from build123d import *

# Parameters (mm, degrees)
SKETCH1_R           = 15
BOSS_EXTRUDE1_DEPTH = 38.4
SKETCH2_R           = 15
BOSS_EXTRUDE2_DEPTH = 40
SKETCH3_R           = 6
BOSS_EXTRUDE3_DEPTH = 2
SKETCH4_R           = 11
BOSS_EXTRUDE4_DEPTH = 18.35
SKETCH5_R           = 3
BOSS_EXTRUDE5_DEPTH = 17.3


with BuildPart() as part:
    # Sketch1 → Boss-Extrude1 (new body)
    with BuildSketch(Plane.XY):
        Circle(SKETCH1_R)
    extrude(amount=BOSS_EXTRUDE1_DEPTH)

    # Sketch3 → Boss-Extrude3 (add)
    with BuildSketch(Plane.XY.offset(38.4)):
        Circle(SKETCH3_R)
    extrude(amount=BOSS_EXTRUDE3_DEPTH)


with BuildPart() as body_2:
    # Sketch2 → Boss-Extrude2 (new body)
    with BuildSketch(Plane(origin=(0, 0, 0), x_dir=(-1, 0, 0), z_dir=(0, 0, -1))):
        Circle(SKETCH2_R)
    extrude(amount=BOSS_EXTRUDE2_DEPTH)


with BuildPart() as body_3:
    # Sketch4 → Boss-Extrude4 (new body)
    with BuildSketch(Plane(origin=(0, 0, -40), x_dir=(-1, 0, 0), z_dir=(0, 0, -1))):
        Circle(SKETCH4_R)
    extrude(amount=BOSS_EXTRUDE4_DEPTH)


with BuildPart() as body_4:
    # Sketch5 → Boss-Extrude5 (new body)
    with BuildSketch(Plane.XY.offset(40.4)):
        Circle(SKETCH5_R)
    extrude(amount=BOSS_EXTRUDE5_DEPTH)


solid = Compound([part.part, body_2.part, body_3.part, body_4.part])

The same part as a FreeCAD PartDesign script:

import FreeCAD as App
import Part
import Sketcher
from FreeCAD import Vector
Q = App.Units.Quantity

doc = App.newDocument("Part")
body = doc.addObject("PartDesign::Body", "Body")

# Sketch on XY plane
sketch1 = body.newObject("Sketcher::SketchObject", "Sketch")
sketch1.AttachmentSupport = (doc.getObject("XY_Plane"), [""])
sketch1.MapMode = "FlatFace"
sketch1.addGeometry(Part.Circle(Vector(0, 0, 0), Vector(0, 0, 1), 15), False)
sketch1.addConstraint([
    Sketcher.Constraint("Coincident", 0, 3, -1, 1),
    Sketcher.Constraint("Diameter", 0, Q("30 mm")),
])
pad1 = body.newObject("PartDesign::Pad", "Pad")
pad1.Profile = sketch1
pad1.Length = 38.4

# Sketch on XY plane
sketch2 = body.newObject("Sketcher::SketchObject", "Sketch001")
sketch2.AttachmentSupport = (doc.getObject("XY_Plane"), [""])
sketch2.MapMode = "FlatFace"
sketch2.AttachmentOffset = App.Placement(Vector(0, 0, 38.4), App.Rotation())
sketch2.addGeometry(Part.Circle(Vector(0, 0, 0), Vector(0, 0, 1), 6), False)
sketch2.addConstraint([
    Sketcher.Constraint("Coincident", 0, 3, -1, 1),
    Sketcher.Constraint("Diameter", 0, Q("12 mm")),
])
pad2 = body.newObject("PartDesign::Pad", "Pad001")
pad2.Profile = sketch2
pad2.Length = 2
body2 = doc.addObject("PartDesign::Body", "Body001")

# Sketch on XY plane
sketch3 = body2.newObject("Sketcher::SketchObject", "Sketch002")
sketch3.AttachmentSupport = (doc.getObject("XY_Plane001"), [""])
sketch3.MapMode = "FlatFace"
sketch3.addGeometry(Part.Circle(Vector(0, 0, 0), Vector(0, 0, 1), 15), False)
sketch3.addConstraint([
    Sketcher.Constraint("Coincident", 0, 3, -1, 1),
    Sketcher.Constraint("Diameter", 0, Q("30 mm")),
])
pad3 = body2.newObject("PartDesign::Pad", "Pad002")
pad3.Profile = sketch3
pad3.Length = 40
pad3.Reversed = True
body3 = doc.addObject("PartDesign::Body", "Body002")

# Sketch on XY plane
sketch4 = body3.newObject("Sketcher::SketchObject", "Sketch003")
sketch4.AttachmentSupport = (doc.getObject("XY_Plane002"), [""])
sketch4.MapMode = "FlatFace"
sketch4.AttachmentOffset = App.Placement(Vector(0, 0, -40), App.Rotation())
sketch4.addGeometry(Part.Circle(Vector(0, 0, 0), Vector(0, 0, 1), 11), False)
sketch4.addConstraint([
    Sketcher.Constraint("Coincident", 0, 3, -1, 1),
    Sketcher.Constraint("Diameter", 0, Q("22 mm")),
])
pad4 = body3.newObject("PartDesign::Pad", "Pad003")
pad4.Profile = sketch4
pad4.Length = 18.35
pad4.Reversed = True
body4 = doc.addObject("PartDesign::Body", "Body003")

# Sketch on XY plane
sketch5 = body4.newObject("Sketcher::SketchObject", "Sketch004")
sketch5.AttachmentSupport = (doc.getObject("XY_Plane003"), [""])
sketch5.MapMode = "FlatFace"
sketch5.AttachmentOffset = App.Placement(Vector(0, 0, 40.4), App.Rotation())
sketch5.addGeometry(Part.Circle(Vector(0, 0, 0), Vector(0, 0, 1), 3), False)
sketch5.addConstraint([
    Sketcher.Constraint("Coincident", 0, 3, -1, 1),
    Sketcher.Constraint("Diameter", 0, Q("6 mm")),
])
pad5 = body4.newObject("PartDesign::Pad", "Pad004")
pad5.Profile = sketch5
pad5.Length = 17.3

doc.recompute()
